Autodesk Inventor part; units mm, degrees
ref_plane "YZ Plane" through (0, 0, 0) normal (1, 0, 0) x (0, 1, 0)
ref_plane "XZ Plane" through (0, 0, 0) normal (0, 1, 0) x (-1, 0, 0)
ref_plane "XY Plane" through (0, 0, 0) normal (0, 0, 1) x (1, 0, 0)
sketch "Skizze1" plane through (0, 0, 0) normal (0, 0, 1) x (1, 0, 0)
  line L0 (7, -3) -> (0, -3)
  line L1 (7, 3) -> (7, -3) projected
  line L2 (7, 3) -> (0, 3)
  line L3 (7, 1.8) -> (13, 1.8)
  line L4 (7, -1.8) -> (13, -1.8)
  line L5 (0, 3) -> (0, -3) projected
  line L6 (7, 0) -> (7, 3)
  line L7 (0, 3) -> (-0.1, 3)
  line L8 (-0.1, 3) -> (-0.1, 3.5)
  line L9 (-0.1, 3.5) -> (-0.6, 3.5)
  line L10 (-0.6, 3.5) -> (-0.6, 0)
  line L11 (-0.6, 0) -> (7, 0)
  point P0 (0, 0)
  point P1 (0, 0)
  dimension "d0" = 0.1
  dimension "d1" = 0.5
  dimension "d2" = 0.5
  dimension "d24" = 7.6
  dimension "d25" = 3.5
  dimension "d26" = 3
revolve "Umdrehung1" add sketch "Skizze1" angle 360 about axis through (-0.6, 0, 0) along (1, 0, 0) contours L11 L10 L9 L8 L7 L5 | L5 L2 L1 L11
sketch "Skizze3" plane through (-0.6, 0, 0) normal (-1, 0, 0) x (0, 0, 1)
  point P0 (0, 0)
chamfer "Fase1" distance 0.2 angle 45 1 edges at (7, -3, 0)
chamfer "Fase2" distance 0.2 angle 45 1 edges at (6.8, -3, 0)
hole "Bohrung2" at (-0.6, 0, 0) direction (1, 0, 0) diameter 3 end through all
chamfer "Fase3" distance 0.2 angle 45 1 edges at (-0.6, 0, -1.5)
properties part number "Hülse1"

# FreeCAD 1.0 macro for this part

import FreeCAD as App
import Part
import Sketcher
from FreeCAD import Vector
Q = App.Units.Quantity


def edges_at(feature, points):
    """Names of the edges that pass closest to the given points."""
    edges = feature.Shape.Edges
    near = lambda p: min(range(len(edges)), key=lambda i: edges[i].distToShape(Part.Vertex(*p))[0])
    return sorted({f"Edge{near(p) + 1}" for p in points})

doc = App.newDocument("Part")
body = doc.addObject("PartDesign::Body", "Body")

# Sketch on XY plane
sketch1 = doc.addObject("Sketcher::SketchObject", "Sketch")
body.addObject(sketch1)
sketch1.AttachmentSupport = (doc.XY_Plane, [""])
sketch1.MapMode = "FlatFace"
sketch1.addGeometry(Part.LineSegment(Vector(-0.6, 0, 0), Vector(7, 0, 0)), False)
sketch1.addGeometry(Part.LineSegment(Vector(7, 0, 0), Vector(7, 3, 0)), False)
sketch1.addGeometry(Part.LineSegment(Vector(7, 3, 0), Vector(-0.1, 3, 0)), False)
sketch1.addGeometry(Part.LineSegment(Vector(-0.1, 3, 0), Vector(-0.1, 3.5, 0)), False)
sketch1.addGeometry(Part.LineSegment(Vector(-0.1, 3.5, 0), Vector(-0.6, 3.5, 0)), False)
sketch1.addGeometry(Part.LineSegment(Vector(-0.6, 3.5, 0), Vector(-0.6, 0, 0)), False)
sketch1.addConstraint(Sketcher.Constraint("Coincident", 0, 2, 1, 1))
sketch1.addConstraint(Sketcher.Constraint("Coincident", 1, 2, 2, 1))
sketch1.addConstraint(Sketcher.Constraint("Coincident", 2, 2, 3, 1))
sketch1.addConstraint(Sketcher.Constraint("Coincident", 3, 2, 4, 1))
sketch1.addConstraint(Sketcher.Constraint("Coincident", 4, 2, 5, 1))
sketch1.addConstraint(Sketcher.Constraint("Coincident", 5, 2, 0, 1))
sketch1.addConstraint(Sketcher.Constraint("Horizontal", 0))
sketch1.addConstraint(Sketcher.Constraint("Vertical", 1))
sketch1.addConstraint(Sketcher.Constraint("Horizontal", 2))
sketch1.addConstraint(Sketcher.Constraint("Vertical", 3))
sketch1.addConstraint(Sketcher.Constraint("Horizontal", 4))
sketch1.addConstraint(Sketcher.Constraint("Vertical", 5))
sketch1.addConstraint(Sketcher.Constraint("PointOnObject", 0, 2, -1))
sketch1.addConstraint(Sketcher.Constraint("Equal", 4, 3))
sketch1.addConstraint(Sketcher.Constraint("DistanceY", 1, 1, 1, 2, Q("3 mm")))
sketch1.addConstraint(Sketcher.Constraint("DistanceX", 0, 1, 0, 2, Q("7.6 mm")))
sketch1.addConstraint(Sketcher.Constraint("DistanceX", 4, 2, 4, 1, Q("0.5 mm")))
sketch1.addConstraint(Sketcher.Constraint("DistanceX", 2, 2, -1, 1, Q("0.1 mm")))
revolution = doc.addObject("PartDesign::Revolution", "Revolution")
body.addObject(revolution)
revolution.Profile = sketch1
revolution.ReferenceAxis = (sketch1, ["H_Axis"])
revolution.Angle = 360
doc.recompute()

chamfer = doc.addObject("PartDesign::Chamfer", "Chamfer")
body.addObject(chamfer)
chamfer.Base = (revolution, edges_at(revolution, [(7, -3, 0)]))
chamfer.Size = 0.2
doc.recompute()

chamfer2 = doc.addObject("PartDesign::Chamfer", "Chamfer001")
body.addObject(chamfer2)
chamfer2.Base = (chamfer, edges_at(chamfer, [(6.8, -3, 0)]))
chamfer2.Size = 0.2

# Sketch on YZ plane
sketch2 = doc.addObject("Sketcher::SketchObject", "Sketch001")
body.addObject(sketch2)
sketch2.AttachmentSupport = (doc.YZ_Plane, [""])
sketch2.MapMode = "FlatFace"
sketch2.AttachmentOffset = App.Placement(Vector(0, 0, -0.6), App.Rotation())
sketch2.addGeometry(Part.Circle(Vector(0, 0, 0), Vector(0, 0, 1), 1.5), False)
sketch2.addConstraint(Sketcher.Constraint("Coincident", 0, 3, -1, 1))
sketch2.addConstraint(Sketcher.Constraint("Diameter", 0, Q("3 mm")))
doc.recompute()
hole = doc.addObject("PartDesign::Hole", "Hole")
body.addObject(hole)
hole.Profile = sketch2
hole.ThreadType = "None"
hole.Diameter = 3
hole.DepthType = "ThroughAll"
hole.Reversed = True
doc.recompute()

chamfer3 = doc.addObject("PartDesign::Chamfer", "Chamfer002")
body.addObject(chamfer3)
chamfer3.Base = (hole, edges_at(hole, [(-0.6, 0, -1.5)]))
chamfer3.Size = 0.2

doc.recompute()
